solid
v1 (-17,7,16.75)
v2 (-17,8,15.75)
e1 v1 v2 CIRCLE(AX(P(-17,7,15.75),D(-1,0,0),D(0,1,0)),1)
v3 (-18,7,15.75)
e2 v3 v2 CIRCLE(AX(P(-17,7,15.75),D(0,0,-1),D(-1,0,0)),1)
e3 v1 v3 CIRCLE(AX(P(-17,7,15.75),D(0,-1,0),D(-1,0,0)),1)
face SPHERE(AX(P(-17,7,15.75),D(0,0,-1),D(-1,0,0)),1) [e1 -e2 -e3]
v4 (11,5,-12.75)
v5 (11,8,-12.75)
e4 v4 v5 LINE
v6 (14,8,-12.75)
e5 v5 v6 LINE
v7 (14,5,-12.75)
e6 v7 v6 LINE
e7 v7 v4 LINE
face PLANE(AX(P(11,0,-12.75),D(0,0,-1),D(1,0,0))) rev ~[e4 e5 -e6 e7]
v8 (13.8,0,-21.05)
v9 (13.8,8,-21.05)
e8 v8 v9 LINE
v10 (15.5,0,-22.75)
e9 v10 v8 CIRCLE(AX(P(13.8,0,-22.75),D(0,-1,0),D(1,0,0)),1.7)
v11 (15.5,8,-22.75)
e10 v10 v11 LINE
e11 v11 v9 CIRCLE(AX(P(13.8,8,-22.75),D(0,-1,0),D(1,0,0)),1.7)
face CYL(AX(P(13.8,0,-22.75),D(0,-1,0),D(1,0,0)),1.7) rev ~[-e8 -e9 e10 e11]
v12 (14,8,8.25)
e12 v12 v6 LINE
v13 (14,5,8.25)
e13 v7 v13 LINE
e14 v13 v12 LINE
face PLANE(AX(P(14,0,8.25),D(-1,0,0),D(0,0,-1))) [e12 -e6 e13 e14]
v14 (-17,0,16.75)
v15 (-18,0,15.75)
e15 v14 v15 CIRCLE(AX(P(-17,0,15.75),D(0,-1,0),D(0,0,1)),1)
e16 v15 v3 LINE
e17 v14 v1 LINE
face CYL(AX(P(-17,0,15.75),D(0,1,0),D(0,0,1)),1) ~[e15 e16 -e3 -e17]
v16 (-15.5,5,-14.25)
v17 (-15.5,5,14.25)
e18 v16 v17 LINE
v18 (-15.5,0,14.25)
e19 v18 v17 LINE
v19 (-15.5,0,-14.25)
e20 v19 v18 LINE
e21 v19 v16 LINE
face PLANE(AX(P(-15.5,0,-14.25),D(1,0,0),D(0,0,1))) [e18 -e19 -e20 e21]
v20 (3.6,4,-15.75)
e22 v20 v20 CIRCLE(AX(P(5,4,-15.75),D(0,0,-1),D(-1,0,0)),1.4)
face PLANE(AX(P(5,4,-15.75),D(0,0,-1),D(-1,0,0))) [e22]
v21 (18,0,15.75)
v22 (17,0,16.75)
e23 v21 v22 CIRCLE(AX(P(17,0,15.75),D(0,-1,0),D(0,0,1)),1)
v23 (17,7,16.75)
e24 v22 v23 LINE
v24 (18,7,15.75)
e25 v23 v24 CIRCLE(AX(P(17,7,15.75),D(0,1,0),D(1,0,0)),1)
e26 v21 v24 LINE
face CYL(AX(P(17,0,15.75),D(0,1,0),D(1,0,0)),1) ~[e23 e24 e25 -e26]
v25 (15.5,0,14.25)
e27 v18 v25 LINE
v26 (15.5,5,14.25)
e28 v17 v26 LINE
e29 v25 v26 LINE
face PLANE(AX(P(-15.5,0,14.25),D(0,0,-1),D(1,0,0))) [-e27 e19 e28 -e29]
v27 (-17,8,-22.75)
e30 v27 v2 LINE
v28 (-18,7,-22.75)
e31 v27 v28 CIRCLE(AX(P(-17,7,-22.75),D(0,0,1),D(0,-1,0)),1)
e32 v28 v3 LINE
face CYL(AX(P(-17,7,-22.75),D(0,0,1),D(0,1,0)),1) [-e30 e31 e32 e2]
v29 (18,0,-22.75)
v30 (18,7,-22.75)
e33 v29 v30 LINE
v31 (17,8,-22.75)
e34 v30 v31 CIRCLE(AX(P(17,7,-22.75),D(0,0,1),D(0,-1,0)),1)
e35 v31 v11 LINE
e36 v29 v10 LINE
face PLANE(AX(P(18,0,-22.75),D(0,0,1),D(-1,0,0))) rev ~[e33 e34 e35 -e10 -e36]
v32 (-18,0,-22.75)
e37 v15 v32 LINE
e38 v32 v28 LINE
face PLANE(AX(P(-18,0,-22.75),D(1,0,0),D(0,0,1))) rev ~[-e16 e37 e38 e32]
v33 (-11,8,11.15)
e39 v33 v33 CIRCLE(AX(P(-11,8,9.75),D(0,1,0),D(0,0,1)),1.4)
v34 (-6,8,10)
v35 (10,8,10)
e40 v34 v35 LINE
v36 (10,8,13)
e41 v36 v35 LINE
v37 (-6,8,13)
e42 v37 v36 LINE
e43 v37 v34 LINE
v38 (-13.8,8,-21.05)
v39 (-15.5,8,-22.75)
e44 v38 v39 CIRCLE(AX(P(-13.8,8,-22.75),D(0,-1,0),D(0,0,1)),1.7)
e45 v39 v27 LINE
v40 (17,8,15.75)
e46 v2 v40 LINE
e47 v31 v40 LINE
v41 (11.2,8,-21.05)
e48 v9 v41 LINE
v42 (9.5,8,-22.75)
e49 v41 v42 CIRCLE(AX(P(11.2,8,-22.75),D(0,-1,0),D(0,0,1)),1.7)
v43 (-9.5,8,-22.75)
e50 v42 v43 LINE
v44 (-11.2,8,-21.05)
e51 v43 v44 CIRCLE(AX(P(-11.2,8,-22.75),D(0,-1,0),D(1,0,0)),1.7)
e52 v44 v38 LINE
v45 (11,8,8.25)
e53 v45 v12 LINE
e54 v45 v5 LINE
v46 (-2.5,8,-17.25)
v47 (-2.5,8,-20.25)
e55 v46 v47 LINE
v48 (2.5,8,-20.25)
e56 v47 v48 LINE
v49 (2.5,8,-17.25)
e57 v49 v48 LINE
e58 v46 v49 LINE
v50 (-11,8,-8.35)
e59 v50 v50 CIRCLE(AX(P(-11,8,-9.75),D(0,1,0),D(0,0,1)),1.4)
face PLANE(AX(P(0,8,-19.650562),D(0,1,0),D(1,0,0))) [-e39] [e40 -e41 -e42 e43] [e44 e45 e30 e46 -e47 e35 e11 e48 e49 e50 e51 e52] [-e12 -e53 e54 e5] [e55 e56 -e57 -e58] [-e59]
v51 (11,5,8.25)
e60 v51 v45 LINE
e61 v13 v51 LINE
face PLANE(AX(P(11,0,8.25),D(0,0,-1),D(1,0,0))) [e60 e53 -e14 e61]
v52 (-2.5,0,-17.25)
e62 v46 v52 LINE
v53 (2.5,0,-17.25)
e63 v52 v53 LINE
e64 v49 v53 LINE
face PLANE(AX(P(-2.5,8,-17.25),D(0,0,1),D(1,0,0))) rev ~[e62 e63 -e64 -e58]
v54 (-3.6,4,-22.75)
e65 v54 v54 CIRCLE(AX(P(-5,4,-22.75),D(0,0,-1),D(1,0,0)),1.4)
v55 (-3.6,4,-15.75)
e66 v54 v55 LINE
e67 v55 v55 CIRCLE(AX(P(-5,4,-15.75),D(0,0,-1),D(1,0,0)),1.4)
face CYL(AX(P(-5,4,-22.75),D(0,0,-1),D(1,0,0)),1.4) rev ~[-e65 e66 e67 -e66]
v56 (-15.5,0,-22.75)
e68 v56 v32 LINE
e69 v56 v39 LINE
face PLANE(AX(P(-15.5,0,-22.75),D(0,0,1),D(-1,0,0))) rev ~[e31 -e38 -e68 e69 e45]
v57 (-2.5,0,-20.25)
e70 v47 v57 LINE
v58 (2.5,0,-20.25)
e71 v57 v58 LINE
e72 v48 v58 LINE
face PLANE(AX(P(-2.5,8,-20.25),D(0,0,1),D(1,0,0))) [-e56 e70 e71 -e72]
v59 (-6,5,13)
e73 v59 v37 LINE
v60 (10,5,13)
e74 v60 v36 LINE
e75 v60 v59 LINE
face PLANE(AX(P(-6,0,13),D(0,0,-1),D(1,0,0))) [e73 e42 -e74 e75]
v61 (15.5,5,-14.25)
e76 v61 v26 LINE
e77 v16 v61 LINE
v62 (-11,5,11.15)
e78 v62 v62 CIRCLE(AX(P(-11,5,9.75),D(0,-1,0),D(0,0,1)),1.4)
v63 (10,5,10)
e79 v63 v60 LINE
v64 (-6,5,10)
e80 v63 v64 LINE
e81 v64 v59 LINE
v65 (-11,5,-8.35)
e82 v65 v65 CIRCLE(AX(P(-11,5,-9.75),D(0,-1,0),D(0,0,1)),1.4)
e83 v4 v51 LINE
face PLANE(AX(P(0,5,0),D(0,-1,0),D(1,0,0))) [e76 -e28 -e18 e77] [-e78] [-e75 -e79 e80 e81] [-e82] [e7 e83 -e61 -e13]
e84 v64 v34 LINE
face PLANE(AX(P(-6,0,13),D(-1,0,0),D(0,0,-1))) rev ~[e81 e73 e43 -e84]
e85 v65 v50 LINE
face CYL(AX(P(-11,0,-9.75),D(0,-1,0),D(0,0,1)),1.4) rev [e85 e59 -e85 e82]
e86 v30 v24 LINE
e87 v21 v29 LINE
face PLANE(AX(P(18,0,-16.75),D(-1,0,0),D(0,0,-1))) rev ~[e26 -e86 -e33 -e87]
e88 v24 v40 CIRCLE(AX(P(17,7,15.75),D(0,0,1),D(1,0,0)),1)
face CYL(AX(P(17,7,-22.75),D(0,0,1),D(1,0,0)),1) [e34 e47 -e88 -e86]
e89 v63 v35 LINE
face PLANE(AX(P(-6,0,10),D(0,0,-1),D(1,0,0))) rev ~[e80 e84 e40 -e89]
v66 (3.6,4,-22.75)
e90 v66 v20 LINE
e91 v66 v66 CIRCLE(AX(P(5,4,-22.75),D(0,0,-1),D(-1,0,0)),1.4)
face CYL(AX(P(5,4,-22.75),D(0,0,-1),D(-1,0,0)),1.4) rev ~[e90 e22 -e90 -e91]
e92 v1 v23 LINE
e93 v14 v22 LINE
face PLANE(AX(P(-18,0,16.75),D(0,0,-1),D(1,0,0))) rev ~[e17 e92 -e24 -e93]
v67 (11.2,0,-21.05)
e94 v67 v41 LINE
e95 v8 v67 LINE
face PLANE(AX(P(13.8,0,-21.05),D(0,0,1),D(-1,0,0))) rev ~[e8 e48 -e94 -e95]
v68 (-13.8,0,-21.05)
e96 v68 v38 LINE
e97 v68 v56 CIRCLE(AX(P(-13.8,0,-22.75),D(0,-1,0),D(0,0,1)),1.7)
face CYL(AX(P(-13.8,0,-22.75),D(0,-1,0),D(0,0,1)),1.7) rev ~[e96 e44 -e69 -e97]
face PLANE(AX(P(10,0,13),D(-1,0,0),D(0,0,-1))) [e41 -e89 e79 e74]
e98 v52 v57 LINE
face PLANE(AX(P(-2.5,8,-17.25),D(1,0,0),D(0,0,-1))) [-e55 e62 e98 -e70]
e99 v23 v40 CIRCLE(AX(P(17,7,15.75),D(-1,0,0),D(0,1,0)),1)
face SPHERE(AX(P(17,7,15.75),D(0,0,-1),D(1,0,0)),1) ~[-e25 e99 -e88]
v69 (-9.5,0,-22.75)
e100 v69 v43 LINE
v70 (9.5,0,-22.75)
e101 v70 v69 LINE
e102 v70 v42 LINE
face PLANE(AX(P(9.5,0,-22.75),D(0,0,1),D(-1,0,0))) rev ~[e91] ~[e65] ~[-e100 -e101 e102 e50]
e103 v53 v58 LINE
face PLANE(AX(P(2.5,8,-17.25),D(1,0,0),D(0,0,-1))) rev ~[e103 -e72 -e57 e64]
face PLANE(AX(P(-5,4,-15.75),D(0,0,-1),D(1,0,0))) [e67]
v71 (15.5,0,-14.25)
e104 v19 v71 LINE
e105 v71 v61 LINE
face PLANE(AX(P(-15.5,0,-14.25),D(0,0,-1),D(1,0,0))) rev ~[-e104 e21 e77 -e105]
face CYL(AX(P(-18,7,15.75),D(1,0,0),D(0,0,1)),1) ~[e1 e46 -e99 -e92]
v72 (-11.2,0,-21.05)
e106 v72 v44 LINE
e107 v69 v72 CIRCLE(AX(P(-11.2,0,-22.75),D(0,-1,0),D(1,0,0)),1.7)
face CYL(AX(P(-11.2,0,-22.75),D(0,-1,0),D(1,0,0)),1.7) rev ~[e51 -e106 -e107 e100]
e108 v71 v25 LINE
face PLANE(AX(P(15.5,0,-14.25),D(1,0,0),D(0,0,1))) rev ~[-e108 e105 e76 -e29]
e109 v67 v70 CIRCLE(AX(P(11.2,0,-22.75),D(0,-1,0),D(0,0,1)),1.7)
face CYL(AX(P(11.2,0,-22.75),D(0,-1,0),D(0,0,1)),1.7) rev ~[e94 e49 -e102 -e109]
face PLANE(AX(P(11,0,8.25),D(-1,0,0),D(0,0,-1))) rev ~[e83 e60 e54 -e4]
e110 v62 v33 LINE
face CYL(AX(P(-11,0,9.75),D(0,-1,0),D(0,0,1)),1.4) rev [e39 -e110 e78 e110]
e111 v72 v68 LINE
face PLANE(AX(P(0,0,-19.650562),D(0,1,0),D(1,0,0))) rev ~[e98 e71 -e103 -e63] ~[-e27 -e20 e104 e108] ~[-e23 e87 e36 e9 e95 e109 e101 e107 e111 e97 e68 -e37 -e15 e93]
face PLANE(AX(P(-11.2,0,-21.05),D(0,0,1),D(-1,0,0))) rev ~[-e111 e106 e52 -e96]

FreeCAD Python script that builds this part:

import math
import FreeCAD as App
import Part
import Sketcher

V = App.Vector


def edges_at(feature, points):
    """Names of the edges that pass closest to the given points."""
    edges = feature.Shape.Edges
    near = lambda p: min(range(len(edges)), key=lambda i: edges[i].distToShape(Part.Vertex(*p))[0])
    return sorted({f"Edge{near(p) + 1}" for p in points})


def add_polygon(sketch, points):
    """Adds a closed chain of lines whose ends are joined by coincident constraints."""
    first, n = sketch.GeometryCount, len(points)
    for a, b in zip(points, points[1:] + points[:1]):
        sketch.addGeometry(Part.LineSegment(App.Vector(*a, 0), App.Vector(*b, 0)), False)
    for i in range(n):
        sketch.addConstraint(Sketcher.Constraint("Coincident", first + i, 2, first + (i + 1) % n, 1))

doc = App.newDocument("Part")
body = doc.addObject("PartDesign::Body", "Body")

sketch1 = body.newObject("Sketcher::SketchObject", "Sketch")
sketch1.AttachmentSupport = (doc.getObject("XZ_Plane"), [""])
sketch1.MapMode = "FlatFace"
add_polygon(sketch1, [(-18, -16.75), (-18, 16.75), (18, 16.75), (18, -16.75)])
sketch1.addGeometry(Part.Circle(V(-11, 9.75, 0), V(0, 0, 1), 1.4), False)
add_polygon(sketch1, [(10, 13), (-6, 13), (-6, 10), (10, 10)])
sketch1.addGeometry(Part.Circle(V(-11, -9.75, 0), V(0, 0, 1), 1.4), False)
add_polygon(sketch1, [(14, 8.25), (11, 8.25), (11, -12.75), (14, -12.75)])
sketch1.addConstraint([
    Sketcher.Constraint("Vertical", 0),
    Sketcher.Constraint("Horizontal", 1),
    Sketcher.Constraint("Vertical", 2),
    Sketcher.Constraint("Horizontal", 3),
    Sketcher.Constraint("Horizontal", 5),
    Sketcher.Constraint("Vertical", 6),
    Sketcher.Constraint("Horizontal", 7),
    Sketcher.Constraint("Vertical", 8),
    Sketcher.Constraint("Horizontal", 10),
    Sketcher.Constraint("Vertical", 11),
    Sketcher.Constraint("Horizontal", 12),
    Sketcher.Constraint("Vertical", 13),
    Sketcher.Constraint("Equal", 4, 9),
    Sketcher.Constraint("Symmetric", 0, 2, 2, 2, -1, 1),
    Sketcher.Constraint("Symmetric", 4, 3, 9, 3, -1),
    Sketcher.Constraint("Equal", 12, 6),
    Sketcher.Constraint("Diameter", 4, 2.8),
    Sketcher.Constraint("DistanceX", 1, 1, 1, 2, 36.0),
    Sketcher.Constraint("DistanceX", 5, 2, 5, 1, 16.0),
    Sketcher.Constraint("DistanceX", 10, 2, 10, 1, 3.0),
    Sketcher.Constraint("DistanceY", 11, 2, 11, 1, 21.0),
    Sketcher.Constraint("DistanceY", 0, 1, 0, 2, 33.5),
    Sketcher.Constraint("DistanceX", 4, 3, -1, 1, 11.0),
    Sketcher.Constraint("DistanceX", 5, 2, -1, 1, 6.0),
    Sketcher.Constraint("DistanceY", -1, 1, 5, 2, 13.0),
    Sketcher.Constraint("DistanceX", -1, 1, 10, 2, 11.0),
    Sketcher.Constraint("DistanceY", 4, 3, 0, 2, 7.0),
    Sketcher.Constraint("DistanceY", 2, 2, 11, 2, 4.0),
])
pad1 = body.newObject("PartDesign::Pad", "Pad")
pad1.Profile = sketch1
pad1.Length = 8
pad1.Reversed = True

sketch2 = body.newObject("Sketcher::SketchObject", "Sketch001")
sketch2.AttachmentSupport = (doc.getObject("XZ_Plane"), [""])
sketch2.MapMode = "FlatFace"
add_polygon(sketch2, [(-15.5, 14.25), (-15.5, -14.25), (15.5, -14.25), (15.5, 14.25)])
sketch2.addConstraint([
    Sketcher.Constraint("Vertical", 0),
    Sketcher.Constraint("Horizontal", 1),
    Sketcher.Constraint("Vertical", 2),
    Sketcher.Constraint("Horizontal", 3),
    Sketcher.Constraint("Symmetric", 0, 2, 2, 2, -1, 1),
    Sketcher.Constraint("DistanceX", 1, 1, 1, 2, 31.0),
    Sketcher.Constraint("DistanceY", 0, 2, 0, 1, 28.5),
])
pocket1 = body.newObject("PartDesign::Pocket", "Pocket")
pocket1.Profile = sketch2
pocket1.Length = 5

sketch3 = body.newObject("Sketcher::SketchObject", "Sketch002")
sketch3.AttachmentSupport = (doc.getObject("XZ_Plane"), [""])
sketch3.MapMode = "FlatFace"
sketch3.addGeometry([
    Part.LineSegment(V(-18, -16.75, 0), V(18, -16.75, 0)),
    Part.LineSegment(V(18, -16.75, 0), V(18, -22.75, 0)),
    Part.LineSegment(V(18, -22.75, 0), V(15.5, -22.75, 0)),
    Part.ArcOfCircle(Part.Circle(V(13.8, -22.75, 0), V(0, 0, 1), 1.7), math.radians(0), math.radians(90)),
    Part.LineSegment(V(13.8, -21.05, 0), V(11.2, -21.05, 0)),
    Part.ArcOfCircle(Part.Circle(V(11.2, -22.75, 0), V(0, 0, 1), 1.7), math.radians(90), math.radians(180)),
    Part.LineSegment(V(9.5, -22.75, 0), V(-9.5, -22.75, 0)),
    Part.ArcOfCircle(Part.Circle(V(-11.2, -22.75, 0), V(0, 0, 1), 1.7), math.radians(0), math.radians(90)),
    Part.LineSegment(V(-11.2, -21.05, 0), V(-13.8, -21.05, 0)),
    Part.ArcOfCircle(Part.Circle(V(-13.8, -22.75, 0), V(0, 0, 1), 1.7), math.radians(90), math.radians(180)),
    Part.LineSegment(V(-15.5, -22.75, 0), V(-18, -22.75, 0)),
    Part.LineSegment(V(-18, -22.75, 0), V(-18, -16.75, 0)),
], False)
sketch3.addConstraint([
    Sketcher.Constraint("Coincident", 0, 2, 1, 1),
    Sketcher.Constraint("Coincident", 1, 2, 2, 1),
    Sketcher.Constraint("Coincident", 2, 2, 3, 1),
    Sketcher.Constraint("Tangent", 3, 2, 4, 1),
    Sketcher.Constraint("Tangent", 4, 2, 5, 1),
    Sketcher.Constraint("Coincident", 5, 2, 6, 1),
    Sketcher.Constraint("Coincident", 6, 2, 7, 1),
    Sketcher.Constraint("Tangent", 7, 2, 8, 1),
    Sketcher.Constraint("Tangent", 8, 2, 9, 1),
    Sketcher.Constraint("Coincident", 9, 2, 10, 1),
    Sketcher.Constraint("Coincident", 10, 2, 11, 1),
    Sketcher.Constraint("Coincident", 11, 2, 0, 1),
    Sketcher.Constraint("Horizontal", 0),
    Sketcher.Constraint("Vertical", 1),
    Sketcher.Constraint("Horizontal", 2),
    Sketcher.Constraint("Horizontal", 4),
    Sketcher.Constraint("Horizontal", 6),
    Sketcher.Constraint("Horizontal", 8),
    Sketcher.Constraint("Horizontal", 10),
    Sketcher.Constraint("Vertical", 11),
    Sketcher.Constraint("Equal", 3, 5),
    Sketcher.Constraint("Equal", 5, 7),
    Sketcher.Constraint("Equal", 7, 9),
    Sketcher.Constraint("Symmetric", 5, 3, 7, 3, -2),
    Sketcher.Constraint("Symmetric", 2, 2, 9, 2, -2),
    Sketcher.Constraint("Horizontal", 9, 3, 1, 2),
    Sketcher.Constraint("Horizontal", 2, 2, 5, 2),
    Sketcher.Constraint("Equal", 2, 10),
    Sketcher.Constraint("Radius", 3, 1.7),
    Sketcher.Constraint("DistanceX", 0, 1, 0, 2, 36.0),
    Sketcher.Constraint("DistanceX", 6, 2, 6, 1, 19.0),
    Sketcher.Constraint("DistanceY", 1, 2, 1, 1, 6.0),
    Sketcher.Constraint("DistanceX", 2, 2, 2, 1, 2.5),
    Sketcher.Constraint("DistanceY", 3, 3, -1, 1, 22.75),
])
pad2 = body.newObject("PartDesign::Pad", "Pad001")
pad2.Profile = sketch3
pad2.Length = 8
pad2.Reversed = True

sketch4 = body.newObject("Sketcher::SketchObject", "Sketch003")
sketch4.AttachmentSupport = (doc.getObject("XY_Plane"), [""])
sketch4.MapMode = "FlatFace"
sketch4.AttachmentOffset = App.Placement(V(0, 0, -22.75), App.Rotation())
sketch4.addGeometry([
    Part.Circle(V(5, 4, 0), V(0, 0, 1), 1.4),
    Part.Circle(V(-5, 4, 0), V(0, 0, 1), 1.4),
], False)
sketch4.addConstraint([
    Sketcher.Constraint("Equal", 0, 1),
    Sketcher.Constraint("Symmetric", 0, 3, 1, 3, -2),
    Sketcher.Constraint("Diameter", 0, 2.8),
    Sketcher.Constraint("DistanceX", -1, 1, 0, 3, 5.0),
    Sketcher.Constraint("DistanceY", -1, 1, 0, 3, 4.0),
])
pocket2 = body.newObject("PartDesign::Pocket", "Pocket001")
pocket2.Profile = sketch4
pocket2.Length = 7
pocket2.Reversed = True

sketch5 = body.newObject("Sketcher::SketchObject", "Sketch004")
sketch5.AttachmentSupport = (doc.getObject("XZ_Plane"), [""])
sketch5.MapMode = "FlatFace"
sketch5.AttachmentOffset = App.Placement(V(0, 0, -8), App.Rotation())
add_polygon(sketch5, [(-2.5, -20.25), (-2.5, -17.25), (2.5, -17.25), (2.5, -20.25)])
sketch5.addConstraint([
    Sketcher.Constraint("Vertical", 0),
    Sketcher.Constraint("Horizontal", 1),
    Sketcher.Constraint("Vertical", 2),
    Sketcher.Constraint("Horizontal", 3),
    Sketcher.Constraint("DistanceX", 1, 1, 1, 2, 5.0),
    Sketcher.Constraint("DistanceY", 0, 1, 0, 2, 3.0),
    Sketcher.Constraint("DistanceX", 0, 2, -1, 1, 2.5),
    Sketcher.Constraint("DistanceY", 0, 2, -1, 1, 17.25),
])
pocket3 = body.newObject("PartDesign::Pocket", "Pocket002")
pocket3.Profile = sketch5
pocket3.Type = "ThroughAll"
pocket3.Reversed = True
doc.recompute()

fillet = body.newObject("PartDesign::Fillet", "Fillet")
fillet.Base = (pocket3, edges_at(pocket3, [
    (18, 8, -3),
    (-18, 8, -3),
    (18, 4, 16.75),
    (-18, 4, 16.75),
    (0, 8, 16.75),
]))
fillet.Radius = 1

doc.recompute()
